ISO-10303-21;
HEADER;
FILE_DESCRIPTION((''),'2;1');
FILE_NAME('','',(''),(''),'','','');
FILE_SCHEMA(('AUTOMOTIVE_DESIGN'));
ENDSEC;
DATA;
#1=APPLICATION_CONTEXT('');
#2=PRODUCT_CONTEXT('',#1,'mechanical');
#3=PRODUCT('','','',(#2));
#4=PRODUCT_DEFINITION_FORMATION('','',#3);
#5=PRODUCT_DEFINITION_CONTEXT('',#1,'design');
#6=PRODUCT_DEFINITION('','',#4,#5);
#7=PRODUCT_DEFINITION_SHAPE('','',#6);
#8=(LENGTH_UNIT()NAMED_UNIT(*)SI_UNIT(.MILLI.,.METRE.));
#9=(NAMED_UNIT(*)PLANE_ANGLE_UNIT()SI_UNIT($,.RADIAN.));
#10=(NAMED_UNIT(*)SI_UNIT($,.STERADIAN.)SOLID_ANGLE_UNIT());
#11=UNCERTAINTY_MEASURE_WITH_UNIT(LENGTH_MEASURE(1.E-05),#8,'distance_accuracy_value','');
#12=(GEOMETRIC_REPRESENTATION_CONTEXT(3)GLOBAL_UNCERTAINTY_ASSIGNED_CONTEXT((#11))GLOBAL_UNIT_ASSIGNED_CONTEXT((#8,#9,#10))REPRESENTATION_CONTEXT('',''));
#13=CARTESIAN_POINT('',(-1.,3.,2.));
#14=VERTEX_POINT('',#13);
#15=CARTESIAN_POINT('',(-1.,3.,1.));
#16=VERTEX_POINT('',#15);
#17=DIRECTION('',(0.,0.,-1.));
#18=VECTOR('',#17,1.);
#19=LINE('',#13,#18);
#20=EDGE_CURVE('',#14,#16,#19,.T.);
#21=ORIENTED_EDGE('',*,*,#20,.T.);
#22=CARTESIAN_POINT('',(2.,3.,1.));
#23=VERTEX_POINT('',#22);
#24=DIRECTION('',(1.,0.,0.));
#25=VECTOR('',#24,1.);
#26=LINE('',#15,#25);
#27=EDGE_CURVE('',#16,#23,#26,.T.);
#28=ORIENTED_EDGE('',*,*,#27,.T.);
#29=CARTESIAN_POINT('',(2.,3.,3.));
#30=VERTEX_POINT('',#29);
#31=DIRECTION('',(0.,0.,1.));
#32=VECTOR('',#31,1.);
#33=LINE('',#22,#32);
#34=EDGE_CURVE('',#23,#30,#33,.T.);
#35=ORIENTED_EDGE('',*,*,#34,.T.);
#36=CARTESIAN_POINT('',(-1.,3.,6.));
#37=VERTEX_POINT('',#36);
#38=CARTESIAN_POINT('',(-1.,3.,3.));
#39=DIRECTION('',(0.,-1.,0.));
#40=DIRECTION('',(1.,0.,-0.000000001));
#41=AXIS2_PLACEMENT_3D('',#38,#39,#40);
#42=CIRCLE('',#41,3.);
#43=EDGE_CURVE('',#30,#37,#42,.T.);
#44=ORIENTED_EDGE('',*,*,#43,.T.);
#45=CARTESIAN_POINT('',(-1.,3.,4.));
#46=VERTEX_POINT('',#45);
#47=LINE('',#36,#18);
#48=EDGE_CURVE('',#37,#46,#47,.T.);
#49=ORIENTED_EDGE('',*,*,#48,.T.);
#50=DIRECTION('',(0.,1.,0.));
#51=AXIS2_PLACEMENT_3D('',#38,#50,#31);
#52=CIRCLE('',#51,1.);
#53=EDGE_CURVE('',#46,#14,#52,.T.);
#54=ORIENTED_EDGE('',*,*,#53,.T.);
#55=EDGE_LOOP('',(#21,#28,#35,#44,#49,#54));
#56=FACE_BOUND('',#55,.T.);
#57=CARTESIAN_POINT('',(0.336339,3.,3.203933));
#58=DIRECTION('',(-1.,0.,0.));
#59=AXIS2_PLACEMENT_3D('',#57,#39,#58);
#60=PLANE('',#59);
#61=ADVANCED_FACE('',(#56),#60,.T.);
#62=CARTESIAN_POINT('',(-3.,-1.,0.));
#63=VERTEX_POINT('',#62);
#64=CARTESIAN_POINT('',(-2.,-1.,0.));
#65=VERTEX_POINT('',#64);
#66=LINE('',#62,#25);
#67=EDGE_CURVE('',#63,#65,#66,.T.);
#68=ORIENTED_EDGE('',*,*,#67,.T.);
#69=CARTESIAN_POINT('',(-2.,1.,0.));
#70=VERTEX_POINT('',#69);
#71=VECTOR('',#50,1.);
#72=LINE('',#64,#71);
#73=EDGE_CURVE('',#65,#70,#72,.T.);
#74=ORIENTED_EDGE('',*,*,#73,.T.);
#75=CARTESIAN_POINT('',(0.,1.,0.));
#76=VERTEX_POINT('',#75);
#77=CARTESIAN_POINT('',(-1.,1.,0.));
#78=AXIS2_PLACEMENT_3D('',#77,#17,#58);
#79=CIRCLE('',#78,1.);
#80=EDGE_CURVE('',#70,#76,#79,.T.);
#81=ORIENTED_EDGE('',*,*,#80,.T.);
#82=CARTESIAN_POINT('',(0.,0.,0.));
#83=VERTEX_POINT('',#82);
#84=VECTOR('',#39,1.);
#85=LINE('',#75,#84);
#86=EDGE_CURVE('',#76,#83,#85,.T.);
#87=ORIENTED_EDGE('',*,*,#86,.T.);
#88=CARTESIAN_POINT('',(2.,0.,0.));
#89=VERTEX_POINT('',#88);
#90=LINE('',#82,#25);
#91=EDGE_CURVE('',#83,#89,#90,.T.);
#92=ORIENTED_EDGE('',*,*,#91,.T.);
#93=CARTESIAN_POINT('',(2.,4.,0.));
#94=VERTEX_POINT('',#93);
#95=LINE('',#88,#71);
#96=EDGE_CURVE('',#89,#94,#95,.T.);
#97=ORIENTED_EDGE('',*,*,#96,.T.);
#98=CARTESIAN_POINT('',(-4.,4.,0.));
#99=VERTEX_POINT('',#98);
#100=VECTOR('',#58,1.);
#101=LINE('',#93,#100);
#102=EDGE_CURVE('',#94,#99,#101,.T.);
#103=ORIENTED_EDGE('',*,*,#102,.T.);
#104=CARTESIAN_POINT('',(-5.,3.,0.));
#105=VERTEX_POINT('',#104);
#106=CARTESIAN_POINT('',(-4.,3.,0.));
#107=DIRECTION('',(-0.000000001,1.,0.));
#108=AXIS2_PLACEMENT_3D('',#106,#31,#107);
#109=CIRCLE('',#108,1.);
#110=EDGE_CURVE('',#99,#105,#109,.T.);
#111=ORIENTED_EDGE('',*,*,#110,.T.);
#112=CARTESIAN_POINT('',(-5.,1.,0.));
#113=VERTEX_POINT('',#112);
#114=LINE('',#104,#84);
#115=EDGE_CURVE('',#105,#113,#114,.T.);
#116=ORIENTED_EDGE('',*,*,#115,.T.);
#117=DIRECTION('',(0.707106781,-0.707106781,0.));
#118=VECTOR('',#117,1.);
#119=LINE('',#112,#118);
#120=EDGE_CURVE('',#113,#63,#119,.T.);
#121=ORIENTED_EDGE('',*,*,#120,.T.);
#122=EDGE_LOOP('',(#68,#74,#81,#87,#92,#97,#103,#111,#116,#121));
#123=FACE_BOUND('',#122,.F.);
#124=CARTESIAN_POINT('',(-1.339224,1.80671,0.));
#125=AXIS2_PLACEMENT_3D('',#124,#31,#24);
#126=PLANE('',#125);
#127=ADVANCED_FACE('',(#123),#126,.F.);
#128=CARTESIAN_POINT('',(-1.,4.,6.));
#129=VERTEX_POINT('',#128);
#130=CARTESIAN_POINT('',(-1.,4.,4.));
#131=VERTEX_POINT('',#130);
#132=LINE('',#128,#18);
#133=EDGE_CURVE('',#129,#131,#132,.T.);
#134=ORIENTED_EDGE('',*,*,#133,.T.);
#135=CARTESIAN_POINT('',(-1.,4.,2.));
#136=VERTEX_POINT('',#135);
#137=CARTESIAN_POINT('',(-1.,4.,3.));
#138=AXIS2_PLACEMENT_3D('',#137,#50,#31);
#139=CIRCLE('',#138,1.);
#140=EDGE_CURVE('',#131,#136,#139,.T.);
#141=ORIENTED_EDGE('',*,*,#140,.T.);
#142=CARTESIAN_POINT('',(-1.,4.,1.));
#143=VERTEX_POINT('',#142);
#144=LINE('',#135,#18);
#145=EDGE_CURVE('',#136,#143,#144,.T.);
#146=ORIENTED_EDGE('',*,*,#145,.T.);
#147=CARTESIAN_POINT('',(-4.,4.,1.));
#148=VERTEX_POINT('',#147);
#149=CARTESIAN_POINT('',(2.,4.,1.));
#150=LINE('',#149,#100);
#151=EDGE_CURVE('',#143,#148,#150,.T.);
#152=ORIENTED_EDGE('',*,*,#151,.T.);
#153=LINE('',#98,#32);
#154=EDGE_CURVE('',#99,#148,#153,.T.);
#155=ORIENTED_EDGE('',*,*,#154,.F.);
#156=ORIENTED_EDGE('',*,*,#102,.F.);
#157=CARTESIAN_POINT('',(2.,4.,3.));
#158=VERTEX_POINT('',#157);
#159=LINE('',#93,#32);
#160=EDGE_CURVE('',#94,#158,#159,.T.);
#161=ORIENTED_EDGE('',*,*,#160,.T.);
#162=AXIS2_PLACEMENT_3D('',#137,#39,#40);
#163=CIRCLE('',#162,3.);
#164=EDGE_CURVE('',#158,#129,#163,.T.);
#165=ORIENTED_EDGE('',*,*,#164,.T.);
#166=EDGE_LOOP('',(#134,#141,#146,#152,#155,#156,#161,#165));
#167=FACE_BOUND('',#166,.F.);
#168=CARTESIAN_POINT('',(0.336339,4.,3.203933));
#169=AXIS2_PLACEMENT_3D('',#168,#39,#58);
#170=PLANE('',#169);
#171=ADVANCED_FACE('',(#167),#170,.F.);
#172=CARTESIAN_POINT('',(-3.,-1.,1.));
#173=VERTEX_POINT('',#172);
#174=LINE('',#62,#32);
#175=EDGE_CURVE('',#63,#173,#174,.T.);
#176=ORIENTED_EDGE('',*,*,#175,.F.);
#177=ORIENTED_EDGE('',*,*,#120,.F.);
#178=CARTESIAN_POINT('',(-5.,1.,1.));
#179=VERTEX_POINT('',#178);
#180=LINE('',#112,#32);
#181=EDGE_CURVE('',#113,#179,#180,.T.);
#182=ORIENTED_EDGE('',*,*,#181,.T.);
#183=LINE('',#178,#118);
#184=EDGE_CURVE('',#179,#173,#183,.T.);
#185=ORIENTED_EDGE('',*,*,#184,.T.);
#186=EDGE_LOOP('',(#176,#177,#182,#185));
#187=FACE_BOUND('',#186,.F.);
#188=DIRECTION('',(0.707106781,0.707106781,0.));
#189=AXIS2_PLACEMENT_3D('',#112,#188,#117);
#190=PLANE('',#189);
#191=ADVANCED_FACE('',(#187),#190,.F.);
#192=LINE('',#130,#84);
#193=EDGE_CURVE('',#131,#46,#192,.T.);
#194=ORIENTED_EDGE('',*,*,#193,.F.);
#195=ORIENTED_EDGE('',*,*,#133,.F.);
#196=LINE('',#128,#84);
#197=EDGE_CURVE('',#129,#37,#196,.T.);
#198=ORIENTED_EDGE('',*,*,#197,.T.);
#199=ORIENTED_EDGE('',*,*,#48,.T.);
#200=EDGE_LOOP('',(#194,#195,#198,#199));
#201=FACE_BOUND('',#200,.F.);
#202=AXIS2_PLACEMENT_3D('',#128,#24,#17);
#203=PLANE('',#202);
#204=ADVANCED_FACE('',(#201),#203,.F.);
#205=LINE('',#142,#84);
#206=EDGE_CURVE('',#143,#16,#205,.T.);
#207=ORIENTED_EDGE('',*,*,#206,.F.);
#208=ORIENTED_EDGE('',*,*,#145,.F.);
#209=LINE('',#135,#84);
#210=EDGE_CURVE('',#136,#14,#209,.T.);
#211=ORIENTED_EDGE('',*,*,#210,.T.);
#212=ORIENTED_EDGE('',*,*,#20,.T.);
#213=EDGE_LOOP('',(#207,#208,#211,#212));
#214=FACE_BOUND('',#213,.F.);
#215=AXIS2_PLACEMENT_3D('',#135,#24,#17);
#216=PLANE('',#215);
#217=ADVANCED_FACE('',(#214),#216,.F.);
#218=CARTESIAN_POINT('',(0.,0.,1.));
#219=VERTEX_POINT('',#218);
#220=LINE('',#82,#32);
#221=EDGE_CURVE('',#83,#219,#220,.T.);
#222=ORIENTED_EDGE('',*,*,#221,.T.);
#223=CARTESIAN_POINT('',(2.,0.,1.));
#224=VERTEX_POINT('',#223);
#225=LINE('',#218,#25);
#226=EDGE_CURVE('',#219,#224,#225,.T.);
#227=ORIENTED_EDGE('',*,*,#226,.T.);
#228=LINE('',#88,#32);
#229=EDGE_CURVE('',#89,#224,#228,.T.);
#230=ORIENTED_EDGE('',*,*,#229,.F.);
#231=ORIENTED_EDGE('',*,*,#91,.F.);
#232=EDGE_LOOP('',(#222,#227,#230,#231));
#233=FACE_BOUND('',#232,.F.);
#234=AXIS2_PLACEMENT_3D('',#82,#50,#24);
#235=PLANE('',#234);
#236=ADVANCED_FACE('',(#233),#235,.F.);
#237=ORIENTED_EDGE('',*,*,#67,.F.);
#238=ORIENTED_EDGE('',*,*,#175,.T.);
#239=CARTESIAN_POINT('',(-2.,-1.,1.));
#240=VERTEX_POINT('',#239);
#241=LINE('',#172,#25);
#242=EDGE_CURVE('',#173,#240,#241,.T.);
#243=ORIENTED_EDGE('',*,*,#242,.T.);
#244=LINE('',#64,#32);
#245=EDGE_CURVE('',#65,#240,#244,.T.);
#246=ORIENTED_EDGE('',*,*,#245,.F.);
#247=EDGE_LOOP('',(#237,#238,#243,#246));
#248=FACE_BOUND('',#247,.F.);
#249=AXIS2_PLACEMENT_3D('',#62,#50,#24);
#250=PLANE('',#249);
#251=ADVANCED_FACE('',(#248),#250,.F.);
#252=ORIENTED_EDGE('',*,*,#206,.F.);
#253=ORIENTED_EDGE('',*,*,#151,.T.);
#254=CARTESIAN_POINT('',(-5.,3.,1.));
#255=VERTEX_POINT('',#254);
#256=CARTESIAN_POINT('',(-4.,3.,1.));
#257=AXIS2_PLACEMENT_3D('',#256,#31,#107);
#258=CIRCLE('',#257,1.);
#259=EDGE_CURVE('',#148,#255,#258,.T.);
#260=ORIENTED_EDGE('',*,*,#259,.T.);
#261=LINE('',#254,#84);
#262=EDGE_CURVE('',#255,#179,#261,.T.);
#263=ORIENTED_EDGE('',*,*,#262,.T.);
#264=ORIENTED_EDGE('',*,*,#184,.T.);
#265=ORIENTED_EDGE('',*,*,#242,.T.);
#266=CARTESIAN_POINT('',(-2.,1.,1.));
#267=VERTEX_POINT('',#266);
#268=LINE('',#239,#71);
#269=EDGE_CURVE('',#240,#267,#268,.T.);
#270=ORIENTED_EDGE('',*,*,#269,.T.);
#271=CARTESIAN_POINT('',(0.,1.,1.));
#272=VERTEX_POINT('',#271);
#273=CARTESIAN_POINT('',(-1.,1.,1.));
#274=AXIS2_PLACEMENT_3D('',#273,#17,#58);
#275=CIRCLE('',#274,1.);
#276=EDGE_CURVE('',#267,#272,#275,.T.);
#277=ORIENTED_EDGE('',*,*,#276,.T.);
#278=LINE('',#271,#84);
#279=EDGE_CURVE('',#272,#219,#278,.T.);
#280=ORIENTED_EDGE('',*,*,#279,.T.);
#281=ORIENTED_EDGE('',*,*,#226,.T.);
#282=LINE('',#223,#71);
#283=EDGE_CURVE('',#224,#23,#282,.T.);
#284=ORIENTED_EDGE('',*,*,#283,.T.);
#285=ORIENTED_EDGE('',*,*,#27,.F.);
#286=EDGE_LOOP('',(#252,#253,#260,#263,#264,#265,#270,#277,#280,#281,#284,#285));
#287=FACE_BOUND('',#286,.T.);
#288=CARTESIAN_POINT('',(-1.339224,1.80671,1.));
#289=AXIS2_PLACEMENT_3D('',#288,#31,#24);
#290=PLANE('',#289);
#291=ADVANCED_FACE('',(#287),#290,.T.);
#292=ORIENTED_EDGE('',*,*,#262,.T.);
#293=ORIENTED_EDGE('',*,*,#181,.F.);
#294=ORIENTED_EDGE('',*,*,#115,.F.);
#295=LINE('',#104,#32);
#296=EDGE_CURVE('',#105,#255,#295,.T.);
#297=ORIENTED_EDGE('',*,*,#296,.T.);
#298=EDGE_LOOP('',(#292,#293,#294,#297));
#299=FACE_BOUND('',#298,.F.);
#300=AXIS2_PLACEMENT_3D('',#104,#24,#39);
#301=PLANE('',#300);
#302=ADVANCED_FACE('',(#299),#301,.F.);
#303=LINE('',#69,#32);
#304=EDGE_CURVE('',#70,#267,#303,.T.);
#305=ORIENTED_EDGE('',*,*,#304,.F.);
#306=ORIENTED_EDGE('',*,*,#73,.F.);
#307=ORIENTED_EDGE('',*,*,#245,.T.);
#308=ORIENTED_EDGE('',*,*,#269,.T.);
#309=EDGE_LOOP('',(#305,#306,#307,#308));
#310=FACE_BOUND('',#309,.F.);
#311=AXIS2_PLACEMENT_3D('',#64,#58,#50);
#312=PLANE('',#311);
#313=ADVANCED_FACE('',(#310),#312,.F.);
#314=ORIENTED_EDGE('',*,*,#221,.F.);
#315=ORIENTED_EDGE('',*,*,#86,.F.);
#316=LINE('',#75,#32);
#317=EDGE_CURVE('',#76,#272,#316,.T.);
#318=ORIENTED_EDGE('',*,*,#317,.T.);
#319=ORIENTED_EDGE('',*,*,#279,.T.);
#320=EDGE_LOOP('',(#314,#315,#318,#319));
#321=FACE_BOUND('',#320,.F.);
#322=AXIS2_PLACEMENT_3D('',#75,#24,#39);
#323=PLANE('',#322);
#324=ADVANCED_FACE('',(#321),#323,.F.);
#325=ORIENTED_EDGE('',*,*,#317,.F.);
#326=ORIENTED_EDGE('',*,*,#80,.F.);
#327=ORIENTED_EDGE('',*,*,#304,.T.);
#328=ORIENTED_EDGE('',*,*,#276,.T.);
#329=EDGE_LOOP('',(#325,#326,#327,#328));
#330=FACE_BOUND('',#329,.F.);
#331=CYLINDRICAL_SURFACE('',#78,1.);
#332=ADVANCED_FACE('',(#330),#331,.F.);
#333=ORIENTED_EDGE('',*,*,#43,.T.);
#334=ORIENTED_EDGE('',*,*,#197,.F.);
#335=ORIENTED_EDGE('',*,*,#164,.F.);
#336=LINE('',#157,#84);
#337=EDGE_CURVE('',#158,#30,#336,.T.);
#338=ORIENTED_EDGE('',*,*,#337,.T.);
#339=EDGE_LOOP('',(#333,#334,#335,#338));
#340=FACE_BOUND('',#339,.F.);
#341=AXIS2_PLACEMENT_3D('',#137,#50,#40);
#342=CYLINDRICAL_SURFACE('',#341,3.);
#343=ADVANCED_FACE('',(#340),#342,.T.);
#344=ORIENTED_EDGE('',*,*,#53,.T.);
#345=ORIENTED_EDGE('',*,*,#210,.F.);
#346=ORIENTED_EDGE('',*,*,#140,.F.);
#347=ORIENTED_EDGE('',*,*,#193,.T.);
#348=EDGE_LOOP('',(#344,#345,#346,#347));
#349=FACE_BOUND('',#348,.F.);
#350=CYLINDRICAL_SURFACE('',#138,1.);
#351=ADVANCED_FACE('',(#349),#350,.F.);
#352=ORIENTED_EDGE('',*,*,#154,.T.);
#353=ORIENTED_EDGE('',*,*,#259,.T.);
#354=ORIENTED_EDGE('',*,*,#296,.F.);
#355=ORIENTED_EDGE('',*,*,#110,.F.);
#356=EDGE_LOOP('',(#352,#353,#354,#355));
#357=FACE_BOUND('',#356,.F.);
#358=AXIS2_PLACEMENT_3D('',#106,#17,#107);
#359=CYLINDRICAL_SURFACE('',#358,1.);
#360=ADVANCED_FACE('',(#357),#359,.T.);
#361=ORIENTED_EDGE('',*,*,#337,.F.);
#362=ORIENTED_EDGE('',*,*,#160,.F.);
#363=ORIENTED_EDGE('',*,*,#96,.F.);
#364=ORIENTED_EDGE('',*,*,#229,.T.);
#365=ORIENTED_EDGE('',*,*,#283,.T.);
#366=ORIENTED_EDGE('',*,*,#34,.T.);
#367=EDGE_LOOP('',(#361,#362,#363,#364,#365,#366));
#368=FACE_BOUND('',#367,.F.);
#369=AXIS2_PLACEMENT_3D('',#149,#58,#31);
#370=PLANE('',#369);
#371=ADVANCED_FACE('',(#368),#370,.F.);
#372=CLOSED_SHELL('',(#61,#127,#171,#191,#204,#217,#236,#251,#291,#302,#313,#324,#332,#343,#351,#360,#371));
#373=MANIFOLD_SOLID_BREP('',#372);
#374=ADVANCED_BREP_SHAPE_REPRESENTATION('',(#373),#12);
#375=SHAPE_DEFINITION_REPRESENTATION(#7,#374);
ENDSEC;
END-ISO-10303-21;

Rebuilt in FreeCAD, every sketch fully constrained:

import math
import FreeCAD as App
import Part
import Sketcher
Q = App.Units.Quantity

doc = App.newDocument("Part")
body = doc.addObject("PartDesign::Body", "Body")

sketch1 = body.newObject("Sketcher::SketchObject", "Sketch")
sketch1.AttachmentSupport = (doc.getObject("XY_Plane"), [""])
sketch1.MapMode = "FlatFace"
sketch1.addGeometry([
    Part.LineSegment(App.Vector(0, 0, 0), App.Vector(2, 0, 0)),
    Part.LineSegment(App.Vector(2, 0, 0), App.Vector(2, 4, 0)),
    Part.LineSegment(App.Vector(2, 4, 0), App.Vector(-4, 4, 0)),
    Part.ArcOfCircle(Part.Circle(App.Vector(-4, 3, 0), App.Vector(0, 0, 1), 1), math.radians(90), math.radians(180)),
    Part.LineSegment(App.Vector(-5, 3, 0), App.Vector(-5, 1, 0)),
    Part.LineSegment(App.Vector(-5, 1, 0), App.Vector(-3, -1, 0)),
    Part.LineSegment(App.Vector(-3, -1, 0), App.Vector(-2, -1, 0)),
    Part.LineSegment(App.Vector(-2, -1, 0), App.Vector(-2, 1, 0)),
    Part.ArcOfCircle(Part.Circle(App.Vector(-1, 1, 0), App.Vector(0, 0, 1), 1), math.radians(0), math.radians(180)),
    Part.LineSegment(App.Vector(0, 1, 0), App.Vector(0, 0, 0)),
], False)
sketch1.addConstraint([
    Sketcher.Constraint("Coincident", 0, 2, 1, 1),
    Sketcher.Constraint("Coincident", 1, 2, 2, 1),
    Sketcher.Constraint("Tangent", 2, 2, 3, 1),
    Sketcher.Constraint("Tangent", 3, 2, 4, 1),
    Sketcher.Constraint("Coincident", 4, 2, 5, 1),
    Sketcher.Constraint("Coincident", 5, 2, 6, 1),
    Sketcher.Constraint("Coincident", 6, 2, 7, 1),
    Sketcher.Constraint("Tangent", 7, 2, 8, 2),
    Sketcher.Constraint("Tangent", 8, 1, 9, 1),
    Sketcher.Constraint("Coincident", 9, 2, 0, 1),
    Sketcher.Constraint("Horizontal", 0),
    Sketcher.Constraint("Vertical", 1),
    Sketcher.Constraint("Horizontal", 2),
    Sketcher.Constraint("Vertical", 4),
    Sketcher.Constraint("Horizontal", 6),
    Sketcher.Constraint("Vertical", 7),
    Sketcher.Constraint("Vertical", 9),
    Sketcher.Constraint("Coincident", 9, 2, -1, 1),
    Sketcher.Constraint("Equal", 3, 8),
    Sketcher.Constraint("Horizontal", 8, 3, 4, 2),
    Sketcher.Constraint("Equal", 0, 4),
    Sketcher.Constraint("Equal", 4, 7),
    Sketcher.Constraint("Equal", 6, 9),
    Sketcher.Constraint("Radius", 3, Q("1 mm")),
    Sketcher.Constraint("DistanceX", 0, 1, 0, 2, Q("2 mm")),
    Sketcher.Constraint("DistanceX", 2, 2, 2, 1, Q("6 mm")),
    Sketcher.Constraint("DistanceX", 6, 1, 6, 2, Q("1 mm")),
])
pad1 = body.newObject("PartDesign::Pad", "Pad")
pad1.Profile = sketch1
pad1.Length = 1

sketch2 = body.newObject("Sketcher::SketchObject", "Sketch001")
sketch2.AttachmentSupport = (doc.getObject("XZ_Plane"), [""])
sketch2.MapMode = "FlatFace"
sketch2.AttachmentOffset = App.Placement(App.Vector(0, 0, -4), App.Rotation())
sketch2.addGeometry([
    Part.LineSegment(App.Vector(2, 1, 0), App.Vector(-1, 1, 0)),
    Part.LineSegment(App.Vector(-1, 1, 0), App.Vector(-1, 2, 0)),
    Part.ArcOfCircle(Part.Circle(App.Vector(-1, 3, 0), App.Vector(0, 0, 1), 1), math.radians(-90), math.radians(90)),
    Part.LineSegment(App.Vector(-1, 4, 0), App.Vector(-1, 6, 0)),
    Part.ArcOfCircle(Part.Circle(App.Vector(-1, 3, 0), App.Vector(0, 0, 1), 3), math.radians(0), math.radians(90)),
    Part.LineSegment(App.Vector(2, 3, 0), App.Vector(2, 1, 0)),
], False)
sketch2.addConstraint([
    Sketcher.Constraint("Coincident", 0, 2, 1, 1),
    Sketcher.Constraint("Coincident", 1, 2, 2, 1),
    Sketcher.Constraint("Coincident", 2, 2, 3, 1),
    Sketcher.Constraint("Coincident", 3, 2, 4, 2),
    Sketcher.Constraint("Tangent", 4, 1, 5, 1),
    Sketcher.Constraint("Coincident", 5, 2, 0, 1),
    Sketcher.Constraint("Horizontal", 0),
    Sketcher.Constraint("Vertical", 1),
    Sketcher.Constraint("Vertical", 3),
    Sketcher.Constraint("Vertical", 5),
    Sketcher.Constraint("Coincident", 4, 3, 2, 3),
    Sketcher.Constraint("Vertical", 4, 3, 0, 2),
    Sketcher.Constraint("Vertical", 1, 2, 2, 2),
    Sketcher.Constraint("Equal", 3, 5),
    Sketcher.Constraint("Radius", 2, Q("1 mm")),
    Sketcher.Constraint("Radius", 4, Q("3 mm")),
    Sketcher.Constraint("DistanceX", 2, 3, -1, 1, Q("1 mm")),
    Sketcher.Constraint("DistanceY", -1, 1, 2, 3, Q("3 mm")),
])
pad2 = body.newObject("PartDesign::Pad", "Pad001")
pad2.Profile = sketch2
pad2.Length = 1

doc.recompute()
